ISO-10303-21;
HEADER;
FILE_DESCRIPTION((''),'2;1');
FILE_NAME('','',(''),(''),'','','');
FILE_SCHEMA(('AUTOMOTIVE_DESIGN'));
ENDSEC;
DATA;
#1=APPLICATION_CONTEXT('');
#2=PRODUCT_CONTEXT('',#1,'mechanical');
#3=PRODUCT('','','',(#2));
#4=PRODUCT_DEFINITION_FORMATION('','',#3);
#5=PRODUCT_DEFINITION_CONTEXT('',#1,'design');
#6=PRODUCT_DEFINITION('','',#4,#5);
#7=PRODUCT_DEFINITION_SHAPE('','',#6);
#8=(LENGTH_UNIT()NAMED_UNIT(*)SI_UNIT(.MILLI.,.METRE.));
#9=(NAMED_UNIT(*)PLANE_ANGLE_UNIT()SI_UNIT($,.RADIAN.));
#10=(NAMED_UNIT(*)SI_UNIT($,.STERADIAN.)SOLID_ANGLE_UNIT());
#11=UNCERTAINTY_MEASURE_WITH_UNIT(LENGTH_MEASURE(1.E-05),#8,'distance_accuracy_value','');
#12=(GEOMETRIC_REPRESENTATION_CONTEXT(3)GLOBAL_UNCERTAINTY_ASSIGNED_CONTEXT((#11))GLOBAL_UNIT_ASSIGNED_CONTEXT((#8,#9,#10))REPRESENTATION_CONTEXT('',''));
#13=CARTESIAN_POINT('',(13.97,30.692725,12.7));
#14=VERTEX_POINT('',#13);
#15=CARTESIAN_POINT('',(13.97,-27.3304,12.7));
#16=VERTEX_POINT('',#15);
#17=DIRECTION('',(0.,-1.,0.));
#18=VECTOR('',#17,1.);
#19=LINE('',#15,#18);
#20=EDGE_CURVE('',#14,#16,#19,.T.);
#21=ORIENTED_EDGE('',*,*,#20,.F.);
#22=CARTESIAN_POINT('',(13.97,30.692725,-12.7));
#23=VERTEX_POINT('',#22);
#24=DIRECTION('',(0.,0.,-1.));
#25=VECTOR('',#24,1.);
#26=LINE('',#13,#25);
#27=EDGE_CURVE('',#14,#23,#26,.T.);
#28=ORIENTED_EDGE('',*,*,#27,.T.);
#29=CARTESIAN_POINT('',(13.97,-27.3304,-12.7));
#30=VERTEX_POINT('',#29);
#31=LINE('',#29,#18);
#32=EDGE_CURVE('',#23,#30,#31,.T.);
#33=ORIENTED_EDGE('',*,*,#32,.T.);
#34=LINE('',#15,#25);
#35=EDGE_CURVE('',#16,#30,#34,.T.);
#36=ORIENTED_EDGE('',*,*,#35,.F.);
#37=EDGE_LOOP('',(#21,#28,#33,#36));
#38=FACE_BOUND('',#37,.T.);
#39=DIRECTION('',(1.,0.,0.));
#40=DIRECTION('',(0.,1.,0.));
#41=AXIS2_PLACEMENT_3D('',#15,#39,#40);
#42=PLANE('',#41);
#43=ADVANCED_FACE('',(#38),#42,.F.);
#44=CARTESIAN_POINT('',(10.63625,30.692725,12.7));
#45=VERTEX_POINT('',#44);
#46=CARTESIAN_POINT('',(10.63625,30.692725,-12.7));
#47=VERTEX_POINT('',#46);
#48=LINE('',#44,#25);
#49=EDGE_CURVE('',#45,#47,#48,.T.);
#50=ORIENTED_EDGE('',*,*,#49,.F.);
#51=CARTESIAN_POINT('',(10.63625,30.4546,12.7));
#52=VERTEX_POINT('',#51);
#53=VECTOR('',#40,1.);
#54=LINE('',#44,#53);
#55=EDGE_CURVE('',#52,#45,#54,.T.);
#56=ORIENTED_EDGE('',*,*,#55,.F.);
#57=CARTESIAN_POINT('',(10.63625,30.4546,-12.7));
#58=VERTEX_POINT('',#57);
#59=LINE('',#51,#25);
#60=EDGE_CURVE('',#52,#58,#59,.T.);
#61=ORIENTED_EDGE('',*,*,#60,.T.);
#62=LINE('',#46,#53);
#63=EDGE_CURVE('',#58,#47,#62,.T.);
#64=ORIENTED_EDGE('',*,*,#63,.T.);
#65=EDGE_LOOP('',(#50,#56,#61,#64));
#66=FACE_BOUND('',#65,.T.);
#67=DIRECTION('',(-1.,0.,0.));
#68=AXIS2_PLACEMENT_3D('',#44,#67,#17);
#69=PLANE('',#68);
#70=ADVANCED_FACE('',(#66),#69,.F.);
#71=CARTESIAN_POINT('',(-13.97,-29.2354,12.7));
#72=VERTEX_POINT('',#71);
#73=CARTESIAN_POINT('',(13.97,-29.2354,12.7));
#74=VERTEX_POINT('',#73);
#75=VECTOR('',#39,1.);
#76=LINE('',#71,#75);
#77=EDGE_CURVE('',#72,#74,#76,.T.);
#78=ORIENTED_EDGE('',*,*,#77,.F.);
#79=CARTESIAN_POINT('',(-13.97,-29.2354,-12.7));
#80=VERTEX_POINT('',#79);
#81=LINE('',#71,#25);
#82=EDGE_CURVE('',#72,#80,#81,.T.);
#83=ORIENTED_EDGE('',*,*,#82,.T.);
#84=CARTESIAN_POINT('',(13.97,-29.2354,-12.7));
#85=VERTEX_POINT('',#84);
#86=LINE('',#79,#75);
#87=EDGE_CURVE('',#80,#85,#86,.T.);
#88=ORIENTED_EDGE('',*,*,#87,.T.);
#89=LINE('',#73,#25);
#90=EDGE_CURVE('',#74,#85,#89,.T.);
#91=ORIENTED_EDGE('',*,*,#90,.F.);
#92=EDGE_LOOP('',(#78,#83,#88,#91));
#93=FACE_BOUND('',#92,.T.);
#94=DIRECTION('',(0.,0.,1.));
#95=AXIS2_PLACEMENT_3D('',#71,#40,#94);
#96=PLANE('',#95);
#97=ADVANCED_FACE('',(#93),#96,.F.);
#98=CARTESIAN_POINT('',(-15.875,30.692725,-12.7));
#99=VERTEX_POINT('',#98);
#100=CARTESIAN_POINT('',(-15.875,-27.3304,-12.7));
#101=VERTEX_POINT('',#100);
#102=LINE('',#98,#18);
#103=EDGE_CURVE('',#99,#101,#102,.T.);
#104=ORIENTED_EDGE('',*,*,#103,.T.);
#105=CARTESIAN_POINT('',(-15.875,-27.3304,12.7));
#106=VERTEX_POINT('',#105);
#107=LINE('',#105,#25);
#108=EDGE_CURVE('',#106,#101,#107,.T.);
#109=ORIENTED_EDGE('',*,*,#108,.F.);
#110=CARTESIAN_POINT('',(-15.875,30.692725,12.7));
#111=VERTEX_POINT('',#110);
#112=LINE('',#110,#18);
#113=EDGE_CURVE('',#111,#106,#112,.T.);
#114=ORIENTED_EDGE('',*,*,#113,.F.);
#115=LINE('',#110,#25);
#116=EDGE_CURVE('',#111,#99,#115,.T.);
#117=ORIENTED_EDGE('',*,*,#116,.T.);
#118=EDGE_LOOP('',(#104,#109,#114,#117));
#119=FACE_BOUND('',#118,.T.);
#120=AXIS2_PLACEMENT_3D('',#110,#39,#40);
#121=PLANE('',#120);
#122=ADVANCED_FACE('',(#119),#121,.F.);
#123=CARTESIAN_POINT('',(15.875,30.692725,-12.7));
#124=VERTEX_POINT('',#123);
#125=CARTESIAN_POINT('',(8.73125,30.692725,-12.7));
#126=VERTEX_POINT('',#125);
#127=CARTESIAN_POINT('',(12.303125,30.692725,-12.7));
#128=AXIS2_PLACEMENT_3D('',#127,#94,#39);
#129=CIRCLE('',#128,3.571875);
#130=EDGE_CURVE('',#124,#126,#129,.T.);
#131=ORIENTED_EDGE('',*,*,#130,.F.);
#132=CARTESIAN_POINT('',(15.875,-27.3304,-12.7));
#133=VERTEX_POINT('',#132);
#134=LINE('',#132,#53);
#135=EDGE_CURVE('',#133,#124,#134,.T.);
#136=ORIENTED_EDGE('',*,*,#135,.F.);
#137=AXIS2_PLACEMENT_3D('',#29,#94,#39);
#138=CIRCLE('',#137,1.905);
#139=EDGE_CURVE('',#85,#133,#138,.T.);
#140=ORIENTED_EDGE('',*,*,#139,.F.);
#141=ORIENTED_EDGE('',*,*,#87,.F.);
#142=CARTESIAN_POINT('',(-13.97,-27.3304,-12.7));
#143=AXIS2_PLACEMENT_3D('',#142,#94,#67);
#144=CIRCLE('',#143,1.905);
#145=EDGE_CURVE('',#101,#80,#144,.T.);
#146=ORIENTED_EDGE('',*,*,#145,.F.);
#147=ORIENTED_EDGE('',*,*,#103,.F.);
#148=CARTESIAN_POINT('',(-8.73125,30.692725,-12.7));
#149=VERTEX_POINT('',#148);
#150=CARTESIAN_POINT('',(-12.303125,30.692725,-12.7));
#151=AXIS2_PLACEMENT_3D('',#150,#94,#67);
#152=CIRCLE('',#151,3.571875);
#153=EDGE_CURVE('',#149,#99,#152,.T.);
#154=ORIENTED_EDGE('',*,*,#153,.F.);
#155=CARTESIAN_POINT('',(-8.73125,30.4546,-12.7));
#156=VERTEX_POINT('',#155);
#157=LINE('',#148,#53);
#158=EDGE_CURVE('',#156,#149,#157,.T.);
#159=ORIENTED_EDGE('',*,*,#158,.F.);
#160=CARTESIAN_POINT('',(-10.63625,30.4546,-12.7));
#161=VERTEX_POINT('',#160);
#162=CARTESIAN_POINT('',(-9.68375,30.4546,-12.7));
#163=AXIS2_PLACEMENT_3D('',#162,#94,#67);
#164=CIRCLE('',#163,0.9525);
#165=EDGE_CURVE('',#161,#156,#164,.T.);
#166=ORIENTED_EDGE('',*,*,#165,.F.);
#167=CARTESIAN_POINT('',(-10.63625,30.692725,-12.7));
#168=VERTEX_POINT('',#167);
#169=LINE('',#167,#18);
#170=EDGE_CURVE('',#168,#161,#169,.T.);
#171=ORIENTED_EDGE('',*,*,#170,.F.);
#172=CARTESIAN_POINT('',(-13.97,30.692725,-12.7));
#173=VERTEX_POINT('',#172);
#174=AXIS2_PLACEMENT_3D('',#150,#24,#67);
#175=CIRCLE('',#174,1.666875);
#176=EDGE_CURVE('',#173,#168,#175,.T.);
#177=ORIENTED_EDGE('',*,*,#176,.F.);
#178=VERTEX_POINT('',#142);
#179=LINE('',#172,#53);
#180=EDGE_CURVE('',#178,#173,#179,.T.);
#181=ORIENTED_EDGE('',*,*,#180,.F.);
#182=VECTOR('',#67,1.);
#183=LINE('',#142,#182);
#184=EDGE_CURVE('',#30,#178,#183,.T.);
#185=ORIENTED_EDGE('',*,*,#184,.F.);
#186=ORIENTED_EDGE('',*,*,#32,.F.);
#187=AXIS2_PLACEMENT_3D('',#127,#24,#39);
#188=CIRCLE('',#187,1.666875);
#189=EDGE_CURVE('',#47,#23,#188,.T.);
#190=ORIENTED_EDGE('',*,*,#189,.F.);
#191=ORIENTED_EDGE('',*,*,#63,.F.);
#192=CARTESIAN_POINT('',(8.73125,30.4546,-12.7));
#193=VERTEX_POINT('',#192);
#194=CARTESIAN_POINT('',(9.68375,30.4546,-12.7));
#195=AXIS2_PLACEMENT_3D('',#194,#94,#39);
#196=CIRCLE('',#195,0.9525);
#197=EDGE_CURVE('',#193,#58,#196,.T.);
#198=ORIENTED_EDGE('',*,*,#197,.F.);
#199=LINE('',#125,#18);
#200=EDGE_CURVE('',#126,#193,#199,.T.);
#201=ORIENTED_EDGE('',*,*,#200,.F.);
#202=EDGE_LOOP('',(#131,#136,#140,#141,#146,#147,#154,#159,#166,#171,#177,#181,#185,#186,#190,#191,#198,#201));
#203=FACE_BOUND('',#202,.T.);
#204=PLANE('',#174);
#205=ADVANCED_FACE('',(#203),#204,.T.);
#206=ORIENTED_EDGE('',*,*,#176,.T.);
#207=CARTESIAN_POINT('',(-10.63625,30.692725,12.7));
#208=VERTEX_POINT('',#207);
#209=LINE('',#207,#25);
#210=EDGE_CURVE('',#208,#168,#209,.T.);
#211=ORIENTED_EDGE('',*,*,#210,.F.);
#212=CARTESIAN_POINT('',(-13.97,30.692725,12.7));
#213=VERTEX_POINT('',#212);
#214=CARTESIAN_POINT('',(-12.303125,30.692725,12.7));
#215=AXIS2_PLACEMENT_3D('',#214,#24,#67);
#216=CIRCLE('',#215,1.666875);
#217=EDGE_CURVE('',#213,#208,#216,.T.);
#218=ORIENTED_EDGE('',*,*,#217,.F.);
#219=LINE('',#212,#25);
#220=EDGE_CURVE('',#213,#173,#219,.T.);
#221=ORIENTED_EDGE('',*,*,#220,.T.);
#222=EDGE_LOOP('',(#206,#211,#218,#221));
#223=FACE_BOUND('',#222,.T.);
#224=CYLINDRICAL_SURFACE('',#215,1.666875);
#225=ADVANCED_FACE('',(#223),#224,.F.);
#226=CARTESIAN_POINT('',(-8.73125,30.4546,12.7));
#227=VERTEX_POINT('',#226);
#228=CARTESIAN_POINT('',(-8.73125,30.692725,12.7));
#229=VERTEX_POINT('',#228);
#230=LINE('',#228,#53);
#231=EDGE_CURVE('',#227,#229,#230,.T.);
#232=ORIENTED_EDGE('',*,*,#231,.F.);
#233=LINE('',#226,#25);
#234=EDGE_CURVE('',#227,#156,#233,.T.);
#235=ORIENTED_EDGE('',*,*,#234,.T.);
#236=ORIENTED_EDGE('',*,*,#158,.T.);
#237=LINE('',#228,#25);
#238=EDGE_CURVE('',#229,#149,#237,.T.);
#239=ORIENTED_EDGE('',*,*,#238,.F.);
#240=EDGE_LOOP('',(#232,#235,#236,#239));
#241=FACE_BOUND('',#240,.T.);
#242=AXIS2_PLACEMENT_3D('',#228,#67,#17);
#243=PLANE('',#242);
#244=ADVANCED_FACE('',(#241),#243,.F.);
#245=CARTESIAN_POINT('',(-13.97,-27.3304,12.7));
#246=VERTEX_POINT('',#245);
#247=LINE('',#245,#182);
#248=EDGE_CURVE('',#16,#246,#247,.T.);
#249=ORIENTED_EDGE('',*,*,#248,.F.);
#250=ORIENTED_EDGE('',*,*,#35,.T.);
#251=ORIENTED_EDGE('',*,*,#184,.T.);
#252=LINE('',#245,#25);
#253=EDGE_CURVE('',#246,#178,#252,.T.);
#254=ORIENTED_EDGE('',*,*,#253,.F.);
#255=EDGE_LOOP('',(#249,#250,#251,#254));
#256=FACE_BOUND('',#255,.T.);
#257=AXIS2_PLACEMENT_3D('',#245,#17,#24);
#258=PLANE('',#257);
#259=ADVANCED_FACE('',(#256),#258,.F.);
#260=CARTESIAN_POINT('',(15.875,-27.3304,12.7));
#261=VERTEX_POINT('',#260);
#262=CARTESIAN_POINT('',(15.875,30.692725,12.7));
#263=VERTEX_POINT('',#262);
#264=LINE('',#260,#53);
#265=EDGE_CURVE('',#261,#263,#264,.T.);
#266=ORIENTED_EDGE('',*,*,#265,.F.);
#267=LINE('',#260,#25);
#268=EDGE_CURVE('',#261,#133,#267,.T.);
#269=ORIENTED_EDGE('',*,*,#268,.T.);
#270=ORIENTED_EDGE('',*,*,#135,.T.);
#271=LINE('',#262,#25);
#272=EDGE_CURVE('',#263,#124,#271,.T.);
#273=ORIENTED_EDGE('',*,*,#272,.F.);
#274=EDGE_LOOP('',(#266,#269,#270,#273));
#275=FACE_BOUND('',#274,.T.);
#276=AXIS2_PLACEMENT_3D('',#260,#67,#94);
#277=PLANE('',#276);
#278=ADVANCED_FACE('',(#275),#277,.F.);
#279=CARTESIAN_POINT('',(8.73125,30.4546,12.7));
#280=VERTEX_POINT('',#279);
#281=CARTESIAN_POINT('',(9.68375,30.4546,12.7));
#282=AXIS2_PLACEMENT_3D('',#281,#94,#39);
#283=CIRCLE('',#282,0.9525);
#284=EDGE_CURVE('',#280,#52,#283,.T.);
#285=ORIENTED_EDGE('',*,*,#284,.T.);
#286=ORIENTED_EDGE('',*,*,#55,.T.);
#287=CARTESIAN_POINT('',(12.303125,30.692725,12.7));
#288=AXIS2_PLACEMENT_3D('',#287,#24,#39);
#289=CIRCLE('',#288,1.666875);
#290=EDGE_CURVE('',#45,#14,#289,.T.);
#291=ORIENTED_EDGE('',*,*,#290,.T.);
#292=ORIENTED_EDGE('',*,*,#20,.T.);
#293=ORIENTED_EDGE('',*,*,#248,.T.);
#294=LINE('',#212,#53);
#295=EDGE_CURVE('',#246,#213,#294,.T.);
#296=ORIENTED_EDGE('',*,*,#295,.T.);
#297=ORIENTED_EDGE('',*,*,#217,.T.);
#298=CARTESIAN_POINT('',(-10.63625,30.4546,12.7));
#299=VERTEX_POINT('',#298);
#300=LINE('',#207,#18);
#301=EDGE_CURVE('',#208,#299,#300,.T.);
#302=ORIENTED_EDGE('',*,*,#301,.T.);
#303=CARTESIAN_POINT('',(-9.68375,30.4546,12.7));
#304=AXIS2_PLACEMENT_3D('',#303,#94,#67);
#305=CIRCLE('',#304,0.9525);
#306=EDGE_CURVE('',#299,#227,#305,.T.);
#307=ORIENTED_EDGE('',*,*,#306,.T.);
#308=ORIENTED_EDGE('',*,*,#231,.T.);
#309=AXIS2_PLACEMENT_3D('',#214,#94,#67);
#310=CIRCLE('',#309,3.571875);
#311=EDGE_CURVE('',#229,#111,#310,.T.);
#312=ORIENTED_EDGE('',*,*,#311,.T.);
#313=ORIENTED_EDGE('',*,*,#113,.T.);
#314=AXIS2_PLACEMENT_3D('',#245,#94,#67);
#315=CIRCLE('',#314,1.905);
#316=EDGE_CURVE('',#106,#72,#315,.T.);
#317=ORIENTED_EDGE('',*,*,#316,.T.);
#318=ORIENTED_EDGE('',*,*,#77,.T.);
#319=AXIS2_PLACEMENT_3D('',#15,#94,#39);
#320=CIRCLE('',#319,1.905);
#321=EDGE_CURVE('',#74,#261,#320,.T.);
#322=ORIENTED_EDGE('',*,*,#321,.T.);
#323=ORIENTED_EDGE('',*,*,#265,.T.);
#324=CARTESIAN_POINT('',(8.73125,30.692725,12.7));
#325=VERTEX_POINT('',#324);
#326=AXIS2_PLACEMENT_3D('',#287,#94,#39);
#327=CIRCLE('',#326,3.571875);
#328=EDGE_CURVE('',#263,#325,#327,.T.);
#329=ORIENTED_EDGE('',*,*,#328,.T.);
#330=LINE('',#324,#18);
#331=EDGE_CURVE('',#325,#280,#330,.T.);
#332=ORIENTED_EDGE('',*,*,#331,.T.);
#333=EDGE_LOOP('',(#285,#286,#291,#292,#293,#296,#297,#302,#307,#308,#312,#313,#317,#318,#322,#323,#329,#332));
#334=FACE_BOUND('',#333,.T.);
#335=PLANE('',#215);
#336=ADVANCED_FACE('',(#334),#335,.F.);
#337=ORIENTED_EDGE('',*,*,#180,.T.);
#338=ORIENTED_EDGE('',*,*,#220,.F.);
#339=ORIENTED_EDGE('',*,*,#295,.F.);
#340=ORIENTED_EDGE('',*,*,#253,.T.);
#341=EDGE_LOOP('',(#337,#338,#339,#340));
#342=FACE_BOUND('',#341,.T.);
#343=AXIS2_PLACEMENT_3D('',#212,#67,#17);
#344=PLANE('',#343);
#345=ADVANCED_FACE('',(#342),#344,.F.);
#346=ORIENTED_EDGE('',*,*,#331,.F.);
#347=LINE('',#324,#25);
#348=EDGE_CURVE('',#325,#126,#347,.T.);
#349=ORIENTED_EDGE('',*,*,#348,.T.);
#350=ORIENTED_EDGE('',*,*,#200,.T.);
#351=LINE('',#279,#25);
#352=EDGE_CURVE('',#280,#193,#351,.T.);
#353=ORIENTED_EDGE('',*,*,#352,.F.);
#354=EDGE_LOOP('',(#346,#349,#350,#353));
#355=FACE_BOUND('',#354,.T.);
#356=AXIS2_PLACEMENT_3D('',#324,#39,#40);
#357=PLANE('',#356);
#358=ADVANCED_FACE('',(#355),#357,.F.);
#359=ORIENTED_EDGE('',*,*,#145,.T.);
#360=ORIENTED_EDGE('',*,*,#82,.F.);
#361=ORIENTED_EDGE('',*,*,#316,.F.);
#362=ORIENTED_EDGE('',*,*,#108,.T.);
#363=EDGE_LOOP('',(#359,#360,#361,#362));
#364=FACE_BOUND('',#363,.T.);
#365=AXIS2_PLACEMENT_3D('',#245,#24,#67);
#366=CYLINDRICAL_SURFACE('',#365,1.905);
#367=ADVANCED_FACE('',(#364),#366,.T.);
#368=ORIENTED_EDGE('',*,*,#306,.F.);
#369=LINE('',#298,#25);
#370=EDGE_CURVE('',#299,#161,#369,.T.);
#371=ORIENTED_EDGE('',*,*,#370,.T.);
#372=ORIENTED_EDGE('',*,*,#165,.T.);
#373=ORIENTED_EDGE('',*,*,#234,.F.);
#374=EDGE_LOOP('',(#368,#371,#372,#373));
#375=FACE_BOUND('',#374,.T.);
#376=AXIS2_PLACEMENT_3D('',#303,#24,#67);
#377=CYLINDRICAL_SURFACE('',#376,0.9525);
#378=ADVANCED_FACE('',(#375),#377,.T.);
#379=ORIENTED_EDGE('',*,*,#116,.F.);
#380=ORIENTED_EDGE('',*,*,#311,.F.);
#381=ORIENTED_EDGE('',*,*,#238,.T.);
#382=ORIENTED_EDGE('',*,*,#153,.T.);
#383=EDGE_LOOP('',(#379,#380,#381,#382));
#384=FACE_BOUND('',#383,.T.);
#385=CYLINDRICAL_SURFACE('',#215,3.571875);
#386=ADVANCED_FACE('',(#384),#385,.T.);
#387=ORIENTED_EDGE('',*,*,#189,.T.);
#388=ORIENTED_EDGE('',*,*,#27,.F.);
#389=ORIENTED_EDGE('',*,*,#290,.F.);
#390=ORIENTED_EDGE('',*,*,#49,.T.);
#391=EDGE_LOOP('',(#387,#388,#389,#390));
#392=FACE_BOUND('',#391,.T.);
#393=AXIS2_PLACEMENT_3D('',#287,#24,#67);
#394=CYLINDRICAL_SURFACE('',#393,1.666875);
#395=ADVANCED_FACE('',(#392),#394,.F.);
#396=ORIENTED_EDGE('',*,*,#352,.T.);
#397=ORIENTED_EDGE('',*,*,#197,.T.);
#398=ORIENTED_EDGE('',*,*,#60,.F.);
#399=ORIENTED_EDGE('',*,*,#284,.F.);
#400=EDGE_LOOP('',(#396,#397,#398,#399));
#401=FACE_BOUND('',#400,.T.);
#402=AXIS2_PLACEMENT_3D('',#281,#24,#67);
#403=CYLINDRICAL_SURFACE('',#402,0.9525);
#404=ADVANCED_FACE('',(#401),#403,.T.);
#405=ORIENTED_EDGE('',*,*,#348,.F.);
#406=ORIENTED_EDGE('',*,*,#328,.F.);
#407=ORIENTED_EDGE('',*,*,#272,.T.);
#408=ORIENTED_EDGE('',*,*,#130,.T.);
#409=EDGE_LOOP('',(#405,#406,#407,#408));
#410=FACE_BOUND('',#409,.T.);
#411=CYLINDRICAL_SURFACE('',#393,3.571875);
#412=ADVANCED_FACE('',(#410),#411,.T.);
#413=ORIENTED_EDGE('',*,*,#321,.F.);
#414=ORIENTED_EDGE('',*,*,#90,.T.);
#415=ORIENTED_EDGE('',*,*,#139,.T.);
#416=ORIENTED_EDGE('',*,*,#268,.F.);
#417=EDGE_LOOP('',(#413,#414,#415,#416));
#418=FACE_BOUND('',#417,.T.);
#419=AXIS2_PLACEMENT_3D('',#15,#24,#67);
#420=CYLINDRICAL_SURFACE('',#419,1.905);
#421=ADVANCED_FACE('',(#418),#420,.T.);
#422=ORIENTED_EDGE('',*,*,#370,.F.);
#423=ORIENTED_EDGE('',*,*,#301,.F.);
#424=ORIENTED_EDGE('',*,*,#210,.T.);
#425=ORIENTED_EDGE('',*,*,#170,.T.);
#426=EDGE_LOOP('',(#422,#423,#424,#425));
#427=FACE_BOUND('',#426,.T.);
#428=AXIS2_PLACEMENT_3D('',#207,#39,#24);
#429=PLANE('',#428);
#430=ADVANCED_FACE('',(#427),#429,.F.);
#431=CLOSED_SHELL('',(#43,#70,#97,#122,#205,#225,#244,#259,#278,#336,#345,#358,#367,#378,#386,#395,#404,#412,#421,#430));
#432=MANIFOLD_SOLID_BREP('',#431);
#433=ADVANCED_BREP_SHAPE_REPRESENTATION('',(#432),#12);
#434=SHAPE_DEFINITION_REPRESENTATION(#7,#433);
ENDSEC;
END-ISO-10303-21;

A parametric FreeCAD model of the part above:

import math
import FreeCAD as App
import Part
import Sketcher
from FreeCAD import Vector
Q = App.Units.Quantity

doc = App.newDocument("Part")
body = doc.addObject("PartDesign::Body", "Body")

# Sketch on XY plane
sketch1 = doc.addObject("Sketcher::SketchObject", "Sketch")
body.addObject(sketch1)
sketch1.AttachmentSupport = (doc.XY_Plane, [""])
sketch1.MapMode = "FlatFace"
sketch1.addGeometry([
    Part.LineSegment(Vector(-15.875, 30.692725, 0), Vector(-15.875, -27.3304, 0)),  # 0
    Part.ArcOfCircle(Part.Circle(Vector(-13.97, -27.3304, 0), Vector(0, 0, 1), 1.905), math.radians(-180), math.radians(-90)),  # 1
    Part.LineSegment(Vector(-13.97, -29.2354, 0), Vector(13.97, -29.2354, 0)),  # 2
    Part.ArcOfCircle(Part.Circle(Vector(13.97, -27.3304, 0), Vector(0, 0, 1), 1.905), math.radians(-90), math.radians(0)),  # 3
    Part.LineSegment(Vector(15.875, -27.3304, 0), Vector(15.875, 30.692725, 0)),  # 4
    Part.ArcOfCircle(Part.Circle(Vector(12.303125, 30.692725, 0), Vector(0, 0, 1), 3.571875), math.radians(0), math.radians(180)),  # 5
    Part.LineSegment(Vector(8.73125, 30.692725, 0), Vector(8.73125, 30.4546, 0)),  # 6
    Part.ArcOfCircle(Part.Circle(Vector(9.68375, 30.4546, 0), Vector(0, 0, 1), 0.9525), math.radians(180), math.radians(360)),  # 7
    Part.LineSegment(Vector(10.63625, 30.4546, 0), Vector(10.63625, 30.692725, 0)),  # 8
    Part.ArcOfCircle(Part.Circle(Vector(12.303125, 30.692725, 0), Vector(0, 0, 1), 1.666875), math.radians(0), math.radians(180)),  # 9
    Part.LineSegment(Vector(13.97, 30.692725, 0), Vector(13.97, -27.3304, 0)),  # 10
    Part.LineSegment(Vector(13.97, -27.3304, 0), Vector(-13.97, -27.3304, 0)),  # 11
    Part.LineSegment(Vector(-13.97, -27.3304, 0), Vector(-13.97, 30.692725, 0)),  # 12
    Part.ArcOfCircle(Part.Circle(Vector(-12.303125, 30.692725, 0), Vector(0, 0, 1), 1.666875), math.radians(0), math.radians(180)),  # 13
    Part.LineSegment(Vector(-10.63625, 30.692725, 0), Vector(-10.63625, 30.4546, 0)),  # 14
    Part.ArcOfCircle(Part.Circle(Vector(-9.68375, 30.4546, 0), Vector(0, 0, 1), 0.9525), math.radians(180), math.radians(360)),  # 15
    Part.LineSegment(Vector(-8.73125, 30.4546, 0), Vector(-8.73125, 30.692725, 0)),  # 16
    Part.ArcOfCircle(Part.Circle(Vector(-12.303125, 30.692725, 0), Vector(0, 0, 1), 3.571875), math.radians(0), math.radians(180)),  # 17
], False)
sketch1.addConstraint([
    Sketcher.Constraint("Tangent", 0, 2, 1, 1),
    Sketcher.Constraint("Tangent", 1, 2, 2, 1),
    Sketcher.Constraint("Tangent", 2, 2, 3, 1),
    Sketcher.Constraint("Tangent", 3, 2, 4, 1),
    Sketcher.Constraint("Tangent", 4, 2, 5, 1),
    Sketcher.Constraint("Tangent", 5, 2, 6, 1),
    Sketcher.Constraint("Tangent", 6, 2, 7, 1),
    Sketcher.Constraint("Tangent", 7, 2, 8, 1),
    Sketcher.Constraint("Tangent", 8, 2, 9, 2),
    Sketcher.Constraint("Tangent", 9, 1, 10, 1),
    Sketcher.Constraint("Coincident", 10, 2, 11, 1),
    Sketcher.Constraint("Coincident", 11, 2, 12, 1),
    Sketcher.Constraint("Tangent", 12, 2, 13, 2),
    Sketcher.Constraint("Tangent", 13, 1, 14, 1),
    Sketcher.Constraint("Tangent", 14, 2, 15, 1),
    Sketcher.Constraint("Tangent", 15, 2, 16, 1),
    Sketcher.Constraint("Tangent", 16, 2, 17, 1),
    Sketcher.Constraint("Tangent", 17, 2, 0, 1),
    Sketcher.Constraint("Vertical", 0),
    Sketcher.Constraint("Horizontal", 2),
    Sketcher.Constraint("Vertical", 4),
    Sketcher.Constraint("Vertical", 6),
    Sketcher.Constraint("Vertical", 8),
    Sketcher.Constraint("Vertical", 10),
    Sketcher.Constraint("Horizontal", 11),
    Sketcher.Constraint("Vertical", 12),
    Sketcher.Constraint("Vertical", 14),
    Sketcher.Constraint("Vertical", 16),
    Sketcher.Constraint("Coincident", 9, 3, 5, 3),
    Sketcher.Constraint("Coincident", 17, 3, 13, 3),
    Sketcher.Constraint("Coincident", 10, 2, 3, 3),
    Sketcher.Constraint("Coincident", 11, 2, 1, 3),
    Sketcher.Constraint("Equal", 9, 13),
    Sketcher.Constraint("Symmetric", 5, 3, 13, 3, -2),
    Sketcher.Constraint("Horizontal", 7, 3, 15, 3),
    Sketcher.Constraint("DistanceX", 2, 1, 2, 2, Q("1.1 in")),
    Sketcher.Constraint("Radius", 1, Q("0.075 in")),
    Sketcher.Constraint("Radius", 5, Q("0.140625 in")),
    Sketcher.Constraint("DistanceY", 1, 2, 15, 3, Q("2.35 in")),
    Sketcher.Constraint("DistanceY", 1, 3, -1, 1, Q("1.076 in")),
    Sketcher.Constraint("DistanceY", 1, 2, 13, 3, Q("2.359375 in")),
])
pad1 = doc.addObject("PartDesign::Pad", "Pad")
body.addObject(pad1)
pad1.Profile = sketch1
pad1.Length = Q("1 in")
pad1.Midplane = True

doc.recompute()
